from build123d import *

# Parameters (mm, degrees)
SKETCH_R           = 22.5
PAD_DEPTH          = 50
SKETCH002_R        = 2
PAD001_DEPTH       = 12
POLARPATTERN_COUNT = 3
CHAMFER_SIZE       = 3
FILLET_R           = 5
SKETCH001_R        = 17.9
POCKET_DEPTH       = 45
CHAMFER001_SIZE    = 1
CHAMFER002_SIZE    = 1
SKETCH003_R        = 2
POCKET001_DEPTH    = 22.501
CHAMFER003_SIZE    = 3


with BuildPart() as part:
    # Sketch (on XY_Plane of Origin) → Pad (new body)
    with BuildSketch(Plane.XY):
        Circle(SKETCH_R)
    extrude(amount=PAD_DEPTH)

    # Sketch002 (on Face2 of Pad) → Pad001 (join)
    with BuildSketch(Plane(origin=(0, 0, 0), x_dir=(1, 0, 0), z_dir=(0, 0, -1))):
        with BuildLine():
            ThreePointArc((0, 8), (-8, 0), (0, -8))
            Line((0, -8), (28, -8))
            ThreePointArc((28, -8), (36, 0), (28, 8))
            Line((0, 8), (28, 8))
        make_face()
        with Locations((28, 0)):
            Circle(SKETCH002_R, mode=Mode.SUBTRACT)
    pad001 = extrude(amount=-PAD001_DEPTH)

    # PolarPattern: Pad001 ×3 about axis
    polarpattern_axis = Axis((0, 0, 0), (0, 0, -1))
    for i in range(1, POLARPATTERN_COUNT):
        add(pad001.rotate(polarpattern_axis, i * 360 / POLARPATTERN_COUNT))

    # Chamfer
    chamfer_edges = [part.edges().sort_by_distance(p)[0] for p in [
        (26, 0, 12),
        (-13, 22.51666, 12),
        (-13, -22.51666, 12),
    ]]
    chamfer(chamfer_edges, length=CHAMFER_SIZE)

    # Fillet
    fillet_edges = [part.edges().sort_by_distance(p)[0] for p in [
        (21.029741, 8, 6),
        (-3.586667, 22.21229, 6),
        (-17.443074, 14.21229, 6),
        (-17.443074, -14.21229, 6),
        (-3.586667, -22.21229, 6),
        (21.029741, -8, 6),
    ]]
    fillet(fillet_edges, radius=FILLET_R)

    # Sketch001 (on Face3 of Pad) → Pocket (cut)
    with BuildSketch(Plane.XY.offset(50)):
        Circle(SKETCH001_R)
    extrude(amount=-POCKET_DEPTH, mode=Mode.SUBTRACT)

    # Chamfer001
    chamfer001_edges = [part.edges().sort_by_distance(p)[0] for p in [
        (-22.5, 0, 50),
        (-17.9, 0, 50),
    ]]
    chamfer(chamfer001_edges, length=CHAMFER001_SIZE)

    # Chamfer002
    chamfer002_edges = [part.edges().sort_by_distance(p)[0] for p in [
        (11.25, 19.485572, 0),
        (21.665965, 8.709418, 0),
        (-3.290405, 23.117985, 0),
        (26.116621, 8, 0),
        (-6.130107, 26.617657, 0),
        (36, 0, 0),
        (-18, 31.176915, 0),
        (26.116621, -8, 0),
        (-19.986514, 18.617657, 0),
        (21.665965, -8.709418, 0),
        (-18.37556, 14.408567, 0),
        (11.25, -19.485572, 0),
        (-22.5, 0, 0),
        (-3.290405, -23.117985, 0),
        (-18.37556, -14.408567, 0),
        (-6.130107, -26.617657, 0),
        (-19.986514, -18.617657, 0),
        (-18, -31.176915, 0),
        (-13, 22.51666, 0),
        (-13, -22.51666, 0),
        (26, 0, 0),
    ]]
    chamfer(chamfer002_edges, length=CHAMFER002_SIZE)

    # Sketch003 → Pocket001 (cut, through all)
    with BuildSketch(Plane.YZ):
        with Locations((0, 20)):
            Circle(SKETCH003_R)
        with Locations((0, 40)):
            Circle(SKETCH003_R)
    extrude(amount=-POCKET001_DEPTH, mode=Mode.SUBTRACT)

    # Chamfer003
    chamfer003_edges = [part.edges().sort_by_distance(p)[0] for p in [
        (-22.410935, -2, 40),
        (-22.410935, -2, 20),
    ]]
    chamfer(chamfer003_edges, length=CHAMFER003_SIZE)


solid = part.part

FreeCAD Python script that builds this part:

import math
import FreeCAD as App
import Part
import Sketcher
from FreeCAD import Vector


def edges_at(feature, points):
    """Names of the edges that pass closest to the given points."""
    edges = feature.Shape.Edges
    near = lambda p: min(range(len(edges)), key=lambda i: edges[i].distToShape(Part.Vertex(*p))[0])
    return sorted({f"Edge{near(p) + 1}" for p in points})

doc = App.newDocument("Part")
body = doc.addObject("PartDesign::Body", "Body")

sketch1 = body.newObject("Sketcher::SketchObject", "Sketch")
sketch1.AttachmentSupport = (doc.getObject("XY_Plane"), [""])
sketch1.MapMode = "FlatFace"
sketch1.addGeometry(Part.Circle(Vector(0, 0, 0), Vector(0, 0, 1), 22.5), False)
sketch1.addConstraint([
    Sketcher.Constraint("Coincident", 0, 3, -1, 1),
    Sketcher.Constraint("Diameter", 0, 45.0),
])
pad1 = body.newObject("PartDesign::Pad", "Pad")
pad1.Profile = sketch1
pad1.Length = 50

sketch2 = body.newObject("Sketcher::SketchObject", "Sketch001")
sketch2.AttachmentSupport = (doc.getObject("XY_Plane"), [""])
sketch2.MapMode = "FlatFace"
sketch2.addGeometry([
    Part.ArcOfCircle(Part.Circle(Vector(0, 0, 0), Vector(0, 0, 1), 8), math.radians(90), math.radians(270)),
    Part.LineSegment(Vector(0, 8, 0), Vector(28, 8, 0)),
    Part.ArcOfCircle(Part.Circle(Vector(28, 0, 0), Vector(0, 0, 1), 8), math.radians(-90), math.radians(90)),
    Part.LineSegment(Vector(28, -8, 0), Vector(0, -8, 0)),
    Part.Circle(Vector(28, 0, 0), Vector(0, 0, 1), 2),
], False)
sketch2.addConstraint([
    Sketcher.Constraint("Tangent", 0, 1, 1, 1),
    Sketcher.Constraint("Tangent", 1, 2, 2, 2),
    Sketcher.Constraint("Tangent", 2, 1, 3, 1),
    Sketcher.Constraint("Tangent", 3, 2, 0, 2),
    Sketcher.Constraint("Horizontal", 1),
    Sketcher.Constraint("Horizontal", 3),
    Sketcher.Constraint("Coincident", 0, 3, -1, 1),
    Sketcher.Constraint("Coincident", 4, 3, 2, 3),
    Sketcher.Constraint("Diameter", 4, 4.0),
    Sketcher.Constraint("Radius", 0, 8.0),
    Sketcher.Constraint("DistanceX", 1, 1, 1, 2, 28.0),
])
pad2 = body.newObject("PartDesign::Pad", "Pad001")
pad2.Profile = sketch2
pad2.Length = 12
doc.recompute()

polarpattern = body.newObject("PartDesign::PolarPattern", "PolarPattern")
polarpattern.Originals = [pad2]
polarpattern.Axis = (doc.getObject("Z_Axis"), [""])
polarpattern.Angle = 360
polarpattern.Occurrences = 3
body.Tip = polarpattern
doc.recompute()

chamfer = body.newObject("PartDesign::Chamfer", "Chamfer")
chamfer.Base = (polarpattern, edges_at(polarpattern, [(26, 0, 12), (-13, 22.517, 12), (-13, -22.517, 12)]))
chamfer.Size = 3
doc.recompute()

fillet = body.newObject("PartDesign::Fillet", "Fillet")
fillet.Base = (chamfer, edges_at(chamfer, [
    (21.03, 8, 6),
    (-3.587, 22.212, 6),
    (-17.443, 14.212, 6),
    (-17.443, -14.212, 6),
    (-3.587, -22.212, 6),
    (21.03, -8, 6),
]))
fillet.Radius = 5

sketch3 = body.newObject("Sketcher::SketchObject", "Sketch002")
sketch3.AttachmentSupport = (doc.getObject("XY_Plane"), [""])
sketch3.MapMode = "FlatFace"
sketch3.AttachmentOffset = App.Placement(Vector(0, 0, 50), App.Rotation())
sketch3.addGeometry(Part.Circle(Vector(0, 0, 0), Vector(0, 0, 1), 17.9), False)
sketch3.addConstraint([
    Sketcher.Constraint("Coincident", 0, 3, -1, 1),
    Sketcher.Constraint("Diameter", 0, 35.8),
])
pocket1 = body.newObject("PartDesign::Pocket", "Pocket")
pocket1.Profile = sketch3
pocket1.Length = 45
doc.recompute()

chamfer2 = body.newObject("PartDesign::Chamfer", "Chamfer001")
chamfer2.Base = (pocket1, edges_at(pocket1, [(-22.5, 0, 50), (-17.9, 0, 50)]))
chamfer2.Size = 1
doc.recompute()

chamfer3 = body.newObject("PartDesign::Chamfer", "Chamfer002")
chamfer3.Base = (chamfer2, edges_at(chamfer2, [
    (11.25, 19.486, 0),
    (21.666, 8.709, 0),
    (-3.29, 23.118, 0),
    (26.117, 8, 0),
    (-6.13, 26.618, 0),
    (36, 0, 0),
    (-18, 31.177, 0),
    (26.117, -8, 0),
    (-19.987, 18.618, 0),
    (21.666, -8.709, 0),
    (-18.376, 14.409, 0),
    (11.25, -19.486, 0),
    (-22.5, 0, 0),
    (-3.29, -23.118, 0),
    (-18.376, -14.409, 0),
    (-6.13, -26.618, 0),
    (-19.987, -18.618, 0),
    (-18, -31.177, 0),
    (-13, 22.517, 0),
    (-13, -22.517, 0),
    (26, 0, 0),
]))
chamfer3.Size = 1

sketch4 = body.newObject("Sketcher::SketchObject", "Sketch003")
sketch4.AttachmentSupport = (doc.getObject("YZ_Plane"), [""])
sketch4.MapMode = "FlatFace"
sketch4.addGeometry([
    Part.Circle(Vector(0, 20, 0), Vector(0, 0, 1), 2),
    Part.Circle(Vector(0, 40, 0), Vector(0, 0, 1), 2),
], False)
sketch4.addConstraint([
    Sketcher.Constraint("Equal", 0, 1),
    Sketcher.Constraint("PointOnObject", 0, 3, -2),
    Sketcher.Constraint("PointOnObject", 1, 3, -2),
    Sketcher.Constraint("Diameter", 0, 4.0),
    Sketcher.Constraint("DistanceY", -1, 1, 0, 3, 20.0),
    Sketcher.Constraint("DistanceY", -1, 1, 1, 3, 40.0),
])
pocket2 = body.newObject("PartDesign::Pocket", "Pocket001")
pocket2.Profile = sketch4
pocket2.Type = "ThroughAll"
doc.recompute()

chamfer4 = body.newObject("PartDesign::Chamfer", "Chamfer003")
chamfer4.Base = (pocket2, edges_at(pocket2, [(-22.411, -2, 40), (-22.411, -2, 20)]))
chamfer4.Size = 3

doc.recompute()
